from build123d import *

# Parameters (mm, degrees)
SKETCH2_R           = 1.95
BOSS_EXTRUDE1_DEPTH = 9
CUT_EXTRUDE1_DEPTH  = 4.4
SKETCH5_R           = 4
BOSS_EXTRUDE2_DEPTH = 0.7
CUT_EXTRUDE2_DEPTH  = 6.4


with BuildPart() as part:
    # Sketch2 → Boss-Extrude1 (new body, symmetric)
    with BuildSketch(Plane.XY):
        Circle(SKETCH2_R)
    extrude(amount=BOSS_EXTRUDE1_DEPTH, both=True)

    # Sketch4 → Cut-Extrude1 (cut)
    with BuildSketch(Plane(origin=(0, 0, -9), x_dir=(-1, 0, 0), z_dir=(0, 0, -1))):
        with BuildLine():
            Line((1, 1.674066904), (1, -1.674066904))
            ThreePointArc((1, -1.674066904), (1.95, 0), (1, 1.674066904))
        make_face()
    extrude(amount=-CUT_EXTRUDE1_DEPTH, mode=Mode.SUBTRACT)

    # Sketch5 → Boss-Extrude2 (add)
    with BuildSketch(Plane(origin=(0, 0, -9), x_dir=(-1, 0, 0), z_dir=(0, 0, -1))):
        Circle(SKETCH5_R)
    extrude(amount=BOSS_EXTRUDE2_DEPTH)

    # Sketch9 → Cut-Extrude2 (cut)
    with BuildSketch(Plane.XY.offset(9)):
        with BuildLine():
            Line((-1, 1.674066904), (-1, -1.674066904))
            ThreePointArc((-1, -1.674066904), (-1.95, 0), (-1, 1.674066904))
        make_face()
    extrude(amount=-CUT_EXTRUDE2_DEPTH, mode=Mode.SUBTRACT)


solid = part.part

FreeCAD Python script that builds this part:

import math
import FreeCAD as App
import Part
import Sketcher

V = App.Vector
Q = App.Units.Quantity

doc = App.newDocument("Part")
body = doc.addObject("PartDesign::Body", "Body")

# Sketch on XY plane
sketch1 = body.newObject("Sketcher::SketchObject", "Sketch")
sketch1.AttachmentSupport = (doc.getObject("XY_Plane"), [""])
sketch1.MapMode = "FlatFace"
sketch1.addGeometry(Part.Circle(V(0, 0, 0), V(0, 0, 1), 1.9), False)
sketch1.addConstraint([
    Sketcher.Constraint("Coincident", 0, 3, -1, 1),
    Sketcher.Constraint("Diameter", 0, Q("3.9 mm")),
])
pad1 = body.newObject("PartDesign::Pad", "Pad")
pad1.Profile = sketch1
pad1.Length = 18
pad1.Midplane = True

# Sketch on XY plane
sketch2 = body.newObject("Sketcher::SketchObject", "Sketch001")
sketch2.AttachmentSupport = (doc.getObject("XY_Plane"), [""])
sketch2.MapMode = "FlatFace"
sketch2.AttachmentOffset = App.Placement(V(0, 0, -9), App.Rotation())
sketch2.addGeometry([
    Part.LineSegment(V(-1, 1.7, 0), V(-1, -1.7, 0)),
    Part.ArcOfCircle(Part.Circle(V(0, 0, 0), V(0, 0, 1), 1.9), math.radians(121), math.radians(239)),
], False)
sketch2.addConstraint([
    Sketcher.Constraint("Coincident", 0, 1, 1, 1),
    Sketcher.Constraint("Coincident", 1, 2, 0, 2),
    Sketcher.Constraint("Vertical", 0),
    Sketcher.Constraint("Coincident", 1, 3, -1, 1),
    Sketcher.Constraint("Radius", 1, Q("1.95 mm")),
    Sketcher.Constraint("DistanceX", 0, 1, -1, 1, Q("1 mm")),
])
pocket1 = body.newObject("PartDesign::Pocket", "Pocket")
pocket1.Profile = sketch2
pocket1.Length = 4.4
pocket1.Reversed = True

# Sketch on XY plane
sketch3 = body.newObject("Sketcher::SketchObject", "Sketch002")
sketch3.AttachmentSupport = (doc.getObject("XY_Plane"), [""])
sketch3.MapMode = "FlatFace"
sketch3.AttachmentOffset = App.Placement(V(0, 0, -9), App.Rotation())
sketch3.addGeometry(Part.Circle(V(0, 0, 0), V(0, 0, 1), 4), False)
sketch3.addConstraint([
    Sketcher.Constraint("Coincident", 0, 3, -1, 1),
    Sketcher.Constraint("Diameter", 0, Q("8 mm")),
])
pad2 = body.newObject("PartDesign::Pad", "Pad001")
pad2.Profile = sketch3
pad2.Length = 0.7
pad2.Reversed = True

# Sketch on XY plane
sketch4 = body.newObject("Sketcher::SketchObject", "Sketch003")
sketch4.AttachmentSupport = (doc.getObject("XY_Plane"), [""])
sketch4.MapMode = "FlatFace"
sketch4.AttachmentOffset = App.Placement(V(0, 0, 9), App.Rotation())
sketch4.addGeometry([
    Part.LineSegment(V(-1, -1.7, 0), V(-1, 1.7, 0)),
    Part.ArcOfCircle(Part.Circle(V(0, 0, 0), V(0, 0, 1), 1.9), math.radians(121), math.radians(239)),
], False)
sketch4.addConstraint([
    Sketcher.Constraint("Coincident", 0, 1, 1, 2),
    Sketcher.Constraint("Coincident", 1, 1, 0, 2),
    Sketcher.Constraint("Vertical", 0),
    Sketcher.Constraint("Coincident", 1, 3, -1, 1),
    Sketcher.Constraint("Radius", 1, Q("1.95 mm")),
    Sketcher.Constraint("DistanceX", 0, 1, -1, 1, Q("1 mm")),
])
pocket2 = body.newObject("PartDesign::Pocket", "Pocket001")
pocket2.Profile = sketch4
pocket2.Length = 6.4

doc.recompute()
